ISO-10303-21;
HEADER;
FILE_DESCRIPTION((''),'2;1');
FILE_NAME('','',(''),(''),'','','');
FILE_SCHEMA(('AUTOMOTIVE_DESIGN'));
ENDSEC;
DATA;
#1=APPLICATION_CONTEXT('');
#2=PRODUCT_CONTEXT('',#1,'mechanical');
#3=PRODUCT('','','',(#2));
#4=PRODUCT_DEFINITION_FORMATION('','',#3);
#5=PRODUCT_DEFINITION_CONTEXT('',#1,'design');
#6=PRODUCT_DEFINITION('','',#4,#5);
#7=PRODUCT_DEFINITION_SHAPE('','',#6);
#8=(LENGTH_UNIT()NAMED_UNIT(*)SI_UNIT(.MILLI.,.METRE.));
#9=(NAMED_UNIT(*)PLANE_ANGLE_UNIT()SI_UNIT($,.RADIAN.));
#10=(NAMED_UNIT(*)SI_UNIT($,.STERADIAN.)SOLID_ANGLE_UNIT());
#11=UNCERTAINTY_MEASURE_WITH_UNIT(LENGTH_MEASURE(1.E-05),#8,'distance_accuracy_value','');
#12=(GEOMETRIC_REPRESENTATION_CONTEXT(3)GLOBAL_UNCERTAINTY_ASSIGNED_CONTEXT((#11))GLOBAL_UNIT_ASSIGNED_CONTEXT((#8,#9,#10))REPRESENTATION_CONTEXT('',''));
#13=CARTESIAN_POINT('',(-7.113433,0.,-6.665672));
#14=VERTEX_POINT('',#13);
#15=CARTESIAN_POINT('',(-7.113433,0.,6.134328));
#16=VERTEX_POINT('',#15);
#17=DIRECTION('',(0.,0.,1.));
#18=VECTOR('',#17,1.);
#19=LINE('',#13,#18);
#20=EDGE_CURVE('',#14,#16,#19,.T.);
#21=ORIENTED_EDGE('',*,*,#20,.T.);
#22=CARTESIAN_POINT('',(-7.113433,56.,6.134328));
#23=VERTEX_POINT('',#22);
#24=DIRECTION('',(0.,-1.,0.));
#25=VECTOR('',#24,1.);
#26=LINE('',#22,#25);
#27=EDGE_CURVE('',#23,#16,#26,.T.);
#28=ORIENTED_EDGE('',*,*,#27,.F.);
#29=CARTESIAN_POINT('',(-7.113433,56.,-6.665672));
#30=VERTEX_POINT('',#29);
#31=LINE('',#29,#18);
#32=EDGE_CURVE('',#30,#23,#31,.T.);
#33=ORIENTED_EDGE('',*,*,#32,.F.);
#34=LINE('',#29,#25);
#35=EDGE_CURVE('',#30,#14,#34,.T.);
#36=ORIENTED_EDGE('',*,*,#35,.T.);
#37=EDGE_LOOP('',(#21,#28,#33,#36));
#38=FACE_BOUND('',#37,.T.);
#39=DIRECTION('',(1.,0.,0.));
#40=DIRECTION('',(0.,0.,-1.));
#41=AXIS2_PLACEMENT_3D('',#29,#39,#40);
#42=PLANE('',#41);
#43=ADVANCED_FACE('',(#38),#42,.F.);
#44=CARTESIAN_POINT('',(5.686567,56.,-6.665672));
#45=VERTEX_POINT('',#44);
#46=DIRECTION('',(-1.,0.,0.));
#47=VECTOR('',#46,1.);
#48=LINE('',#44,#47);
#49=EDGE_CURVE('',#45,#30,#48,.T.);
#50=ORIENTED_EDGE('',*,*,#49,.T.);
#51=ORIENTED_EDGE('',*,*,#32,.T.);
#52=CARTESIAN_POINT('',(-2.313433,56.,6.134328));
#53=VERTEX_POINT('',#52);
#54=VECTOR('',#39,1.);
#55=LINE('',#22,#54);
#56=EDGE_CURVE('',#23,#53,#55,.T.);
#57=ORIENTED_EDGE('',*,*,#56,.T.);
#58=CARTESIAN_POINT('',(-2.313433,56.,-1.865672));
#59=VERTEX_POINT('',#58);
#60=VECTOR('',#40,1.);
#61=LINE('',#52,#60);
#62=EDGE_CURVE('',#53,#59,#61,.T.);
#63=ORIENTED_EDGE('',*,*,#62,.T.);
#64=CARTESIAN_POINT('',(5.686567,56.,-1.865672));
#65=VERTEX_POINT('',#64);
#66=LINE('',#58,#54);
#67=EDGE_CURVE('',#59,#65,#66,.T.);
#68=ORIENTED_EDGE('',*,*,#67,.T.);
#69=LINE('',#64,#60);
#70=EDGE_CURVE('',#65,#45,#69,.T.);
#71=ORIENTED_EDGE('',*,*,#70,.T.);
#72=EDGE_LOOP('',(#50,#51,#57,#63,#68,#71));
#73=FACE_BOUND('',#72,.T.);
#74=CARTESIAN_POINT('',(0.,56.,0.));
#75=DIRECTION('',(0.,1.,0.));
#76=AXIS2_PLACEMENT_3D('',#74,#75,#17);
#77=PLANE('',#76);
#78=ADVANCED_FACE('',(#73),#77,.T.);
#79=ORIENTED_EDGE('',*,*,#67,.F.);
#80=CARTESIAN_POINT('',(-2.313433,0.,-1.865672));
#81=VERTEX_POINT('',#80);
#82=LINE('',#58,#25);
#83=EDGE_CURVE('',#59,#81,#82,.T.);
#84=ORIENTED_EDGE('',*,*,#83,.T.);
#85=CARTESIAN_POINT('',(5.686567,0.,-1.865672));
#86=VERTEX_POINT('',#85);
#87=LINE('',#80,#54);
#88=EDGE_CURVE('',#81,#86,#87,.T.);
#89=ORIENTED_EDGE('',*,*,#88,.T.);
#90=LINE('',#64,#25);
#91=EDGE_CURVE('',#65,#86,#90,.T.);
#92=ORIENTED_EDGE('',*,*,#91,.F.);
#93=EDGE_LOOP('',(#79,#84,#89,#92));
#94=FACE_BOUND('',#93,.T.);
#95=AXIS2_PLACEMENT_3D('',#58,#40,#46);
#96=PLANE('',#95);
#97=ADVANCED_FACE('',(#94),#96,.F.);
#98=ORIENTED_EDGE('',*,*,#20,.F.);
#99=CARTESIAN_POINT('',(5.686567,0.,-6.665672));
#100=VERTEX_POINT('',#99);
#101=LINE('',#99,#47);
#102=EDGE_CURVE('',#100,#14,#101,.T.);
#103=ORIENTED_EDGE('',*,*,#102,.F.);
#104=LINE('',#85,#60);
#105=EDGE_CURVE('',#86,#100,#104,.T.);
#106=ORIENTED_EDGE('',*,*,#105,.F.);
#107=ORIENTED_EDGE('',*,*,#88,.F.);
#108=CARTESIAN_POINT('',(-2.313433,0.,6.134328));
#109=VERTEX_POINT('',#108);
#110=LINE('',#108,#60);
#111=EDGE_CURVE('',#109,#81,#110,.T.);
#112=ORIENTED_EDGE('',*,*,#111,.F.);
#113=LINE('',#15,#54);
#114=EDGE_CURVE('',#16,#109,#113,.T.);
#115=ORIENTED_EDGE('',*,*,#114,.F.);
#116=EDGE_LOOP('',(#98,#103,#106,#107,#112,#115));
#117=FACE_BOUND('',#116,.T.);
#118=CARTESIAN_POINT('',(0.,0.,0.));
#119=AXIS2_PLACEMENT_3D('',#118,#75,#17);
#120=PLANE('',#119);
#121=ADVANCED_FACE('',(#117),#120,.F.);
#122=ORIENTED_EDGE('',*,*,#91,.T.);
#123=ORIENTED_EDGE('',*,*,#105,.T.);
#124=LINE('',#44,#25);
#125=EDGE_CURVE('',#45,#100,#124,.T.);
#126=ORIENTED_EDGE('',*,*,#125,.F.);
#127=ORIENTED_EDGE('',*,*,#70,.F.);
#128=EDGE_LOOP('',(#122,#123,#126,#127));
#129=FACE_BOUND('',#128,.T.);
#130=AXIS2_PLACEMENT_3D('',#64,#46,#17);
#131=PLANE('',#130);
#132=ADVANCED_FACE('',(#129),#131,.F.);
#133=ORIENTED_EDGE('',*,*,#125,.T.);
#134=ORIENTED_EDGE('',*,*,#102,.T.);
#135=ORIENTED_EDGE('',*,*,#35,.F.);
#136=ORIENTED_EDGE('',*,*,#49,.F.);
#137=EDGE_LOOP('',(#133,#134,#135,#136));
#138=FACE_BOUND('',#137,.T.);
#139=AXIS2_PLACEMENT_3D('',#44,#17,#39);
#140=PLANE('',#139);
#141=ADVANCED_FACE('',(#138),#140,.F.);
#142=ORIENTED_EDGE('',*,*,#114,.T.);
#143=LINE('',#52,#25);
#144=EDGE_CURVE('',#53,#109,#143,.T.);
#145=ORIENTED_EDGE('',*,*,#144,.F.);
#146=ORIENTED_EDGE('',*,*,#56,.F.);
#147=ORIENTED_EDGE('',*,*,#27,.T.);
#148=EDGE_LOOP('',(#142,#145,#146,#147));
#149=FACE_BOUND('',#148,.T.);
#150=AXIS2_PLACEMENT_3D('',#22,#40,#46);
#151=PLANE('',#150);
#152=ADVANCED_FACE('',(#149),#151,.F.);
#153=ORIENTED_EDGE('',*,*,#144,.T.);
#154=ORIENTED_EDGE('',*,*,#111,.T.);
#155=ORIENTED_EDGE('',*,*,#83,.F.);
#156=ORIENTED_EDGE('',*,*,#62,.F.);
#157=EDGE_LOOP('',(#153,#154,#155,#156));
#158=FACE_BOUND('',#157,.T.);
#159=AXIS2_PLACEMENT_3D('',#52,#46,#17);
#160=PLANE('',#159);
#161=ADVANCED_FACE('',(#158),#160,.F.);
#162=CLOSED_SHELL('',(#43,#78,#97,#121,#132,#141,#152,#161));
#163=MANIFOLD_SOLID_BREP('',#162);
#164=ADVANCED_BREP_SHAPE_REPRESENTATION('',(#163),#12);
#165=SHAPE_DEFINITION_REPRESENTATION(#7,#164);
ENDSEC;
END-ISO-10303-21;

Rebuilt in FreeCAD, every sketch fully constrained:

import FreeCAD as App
import Part
import Sketcher
from FreeCAD import Vector
Q = App.Units.Quantity


def add_polygon(sketch, points):
    """Adds a closed chain of lines whose ends are joined by coincident constraints."""
    first, n = sketch.GeometryCount, len(points)
    for a, b in zip(points, points[1:] + points[:1]):
        sketch.addGeometry(Part.LineSegment(App.Vector(*a, 0), App.Vector(*b, 0)), False)
    for i in range(n):
        sketch.addConstraint(Sketcher.Constraint("Coincident", first + i, 2, first + (i + 1) % n, 1))

doc = App.newDocument("Part")
body = doc.addObject("PartDesign::Body", "Body")

# Sketch on XZ plane
sketch1 = doc.addObject("Sketcher::SketchObject", "Sketch")
body.addObject(sketch1)
sketch1.AttachmentSupport = (doc.XZ_Plane, [""])
sketch1.MapMode = "FlatFace"
add_polygon(sketch1, [(-7.1, -6.7), (-7.1, 6.1), (-2.3, 6.1), (-2.3, -1.9), (5.7, -1.9), (5.7, -6.7)])  # lines 0-5
sketch1.addConstraint(Sketcher.Constraint("Vertical", 0))
sketch1.addConstraint(Sketcher.Constraint("Horizontal", 1))
sketch1.addConstraint(Sketcher.Constraint("Vertical", 2))
sketch1.addConstraint(Sketcher.Constraint("Horizontal", 3))
sketch1.addConstraint(Sketcher.Constraint("Vertical", 4))
sketch1.addConstraint(Sketcher.Constraint("Horizontal", 5))
sketch1.addConstraint(Sketcher.Constraint("Equal", 5, 0))
sketch1.addConstraint(Sketcher.Constraint("Equal", 3, 2))
sketch1.addConstraint(Sketcher.Constraint("DistanceX", 3, 1, 3, 2, Q("8 mm")))
sketch1.addConstraint(Sketcher.Constraint("DistanceX", 1, 1, 1, 2, Q("4.8 mm")))
sketch1.addConstraint(Sketcher.Constraint("DistanceY", -1, 1, 0, 2, Q("6.134328 mm")))
sketch1.addConstraint(Sketcher.Constraint("DistanceX", 0, 2, -1, 1, Q("7.113433 mm")))
pad1 = doc.addObject("PartDesign::Pad", "Pad")
body.addObject(pad1)
pad1.Profile = sketch1
pad1.Length = 56
pad1.Reversed = True

doc.recompute()
